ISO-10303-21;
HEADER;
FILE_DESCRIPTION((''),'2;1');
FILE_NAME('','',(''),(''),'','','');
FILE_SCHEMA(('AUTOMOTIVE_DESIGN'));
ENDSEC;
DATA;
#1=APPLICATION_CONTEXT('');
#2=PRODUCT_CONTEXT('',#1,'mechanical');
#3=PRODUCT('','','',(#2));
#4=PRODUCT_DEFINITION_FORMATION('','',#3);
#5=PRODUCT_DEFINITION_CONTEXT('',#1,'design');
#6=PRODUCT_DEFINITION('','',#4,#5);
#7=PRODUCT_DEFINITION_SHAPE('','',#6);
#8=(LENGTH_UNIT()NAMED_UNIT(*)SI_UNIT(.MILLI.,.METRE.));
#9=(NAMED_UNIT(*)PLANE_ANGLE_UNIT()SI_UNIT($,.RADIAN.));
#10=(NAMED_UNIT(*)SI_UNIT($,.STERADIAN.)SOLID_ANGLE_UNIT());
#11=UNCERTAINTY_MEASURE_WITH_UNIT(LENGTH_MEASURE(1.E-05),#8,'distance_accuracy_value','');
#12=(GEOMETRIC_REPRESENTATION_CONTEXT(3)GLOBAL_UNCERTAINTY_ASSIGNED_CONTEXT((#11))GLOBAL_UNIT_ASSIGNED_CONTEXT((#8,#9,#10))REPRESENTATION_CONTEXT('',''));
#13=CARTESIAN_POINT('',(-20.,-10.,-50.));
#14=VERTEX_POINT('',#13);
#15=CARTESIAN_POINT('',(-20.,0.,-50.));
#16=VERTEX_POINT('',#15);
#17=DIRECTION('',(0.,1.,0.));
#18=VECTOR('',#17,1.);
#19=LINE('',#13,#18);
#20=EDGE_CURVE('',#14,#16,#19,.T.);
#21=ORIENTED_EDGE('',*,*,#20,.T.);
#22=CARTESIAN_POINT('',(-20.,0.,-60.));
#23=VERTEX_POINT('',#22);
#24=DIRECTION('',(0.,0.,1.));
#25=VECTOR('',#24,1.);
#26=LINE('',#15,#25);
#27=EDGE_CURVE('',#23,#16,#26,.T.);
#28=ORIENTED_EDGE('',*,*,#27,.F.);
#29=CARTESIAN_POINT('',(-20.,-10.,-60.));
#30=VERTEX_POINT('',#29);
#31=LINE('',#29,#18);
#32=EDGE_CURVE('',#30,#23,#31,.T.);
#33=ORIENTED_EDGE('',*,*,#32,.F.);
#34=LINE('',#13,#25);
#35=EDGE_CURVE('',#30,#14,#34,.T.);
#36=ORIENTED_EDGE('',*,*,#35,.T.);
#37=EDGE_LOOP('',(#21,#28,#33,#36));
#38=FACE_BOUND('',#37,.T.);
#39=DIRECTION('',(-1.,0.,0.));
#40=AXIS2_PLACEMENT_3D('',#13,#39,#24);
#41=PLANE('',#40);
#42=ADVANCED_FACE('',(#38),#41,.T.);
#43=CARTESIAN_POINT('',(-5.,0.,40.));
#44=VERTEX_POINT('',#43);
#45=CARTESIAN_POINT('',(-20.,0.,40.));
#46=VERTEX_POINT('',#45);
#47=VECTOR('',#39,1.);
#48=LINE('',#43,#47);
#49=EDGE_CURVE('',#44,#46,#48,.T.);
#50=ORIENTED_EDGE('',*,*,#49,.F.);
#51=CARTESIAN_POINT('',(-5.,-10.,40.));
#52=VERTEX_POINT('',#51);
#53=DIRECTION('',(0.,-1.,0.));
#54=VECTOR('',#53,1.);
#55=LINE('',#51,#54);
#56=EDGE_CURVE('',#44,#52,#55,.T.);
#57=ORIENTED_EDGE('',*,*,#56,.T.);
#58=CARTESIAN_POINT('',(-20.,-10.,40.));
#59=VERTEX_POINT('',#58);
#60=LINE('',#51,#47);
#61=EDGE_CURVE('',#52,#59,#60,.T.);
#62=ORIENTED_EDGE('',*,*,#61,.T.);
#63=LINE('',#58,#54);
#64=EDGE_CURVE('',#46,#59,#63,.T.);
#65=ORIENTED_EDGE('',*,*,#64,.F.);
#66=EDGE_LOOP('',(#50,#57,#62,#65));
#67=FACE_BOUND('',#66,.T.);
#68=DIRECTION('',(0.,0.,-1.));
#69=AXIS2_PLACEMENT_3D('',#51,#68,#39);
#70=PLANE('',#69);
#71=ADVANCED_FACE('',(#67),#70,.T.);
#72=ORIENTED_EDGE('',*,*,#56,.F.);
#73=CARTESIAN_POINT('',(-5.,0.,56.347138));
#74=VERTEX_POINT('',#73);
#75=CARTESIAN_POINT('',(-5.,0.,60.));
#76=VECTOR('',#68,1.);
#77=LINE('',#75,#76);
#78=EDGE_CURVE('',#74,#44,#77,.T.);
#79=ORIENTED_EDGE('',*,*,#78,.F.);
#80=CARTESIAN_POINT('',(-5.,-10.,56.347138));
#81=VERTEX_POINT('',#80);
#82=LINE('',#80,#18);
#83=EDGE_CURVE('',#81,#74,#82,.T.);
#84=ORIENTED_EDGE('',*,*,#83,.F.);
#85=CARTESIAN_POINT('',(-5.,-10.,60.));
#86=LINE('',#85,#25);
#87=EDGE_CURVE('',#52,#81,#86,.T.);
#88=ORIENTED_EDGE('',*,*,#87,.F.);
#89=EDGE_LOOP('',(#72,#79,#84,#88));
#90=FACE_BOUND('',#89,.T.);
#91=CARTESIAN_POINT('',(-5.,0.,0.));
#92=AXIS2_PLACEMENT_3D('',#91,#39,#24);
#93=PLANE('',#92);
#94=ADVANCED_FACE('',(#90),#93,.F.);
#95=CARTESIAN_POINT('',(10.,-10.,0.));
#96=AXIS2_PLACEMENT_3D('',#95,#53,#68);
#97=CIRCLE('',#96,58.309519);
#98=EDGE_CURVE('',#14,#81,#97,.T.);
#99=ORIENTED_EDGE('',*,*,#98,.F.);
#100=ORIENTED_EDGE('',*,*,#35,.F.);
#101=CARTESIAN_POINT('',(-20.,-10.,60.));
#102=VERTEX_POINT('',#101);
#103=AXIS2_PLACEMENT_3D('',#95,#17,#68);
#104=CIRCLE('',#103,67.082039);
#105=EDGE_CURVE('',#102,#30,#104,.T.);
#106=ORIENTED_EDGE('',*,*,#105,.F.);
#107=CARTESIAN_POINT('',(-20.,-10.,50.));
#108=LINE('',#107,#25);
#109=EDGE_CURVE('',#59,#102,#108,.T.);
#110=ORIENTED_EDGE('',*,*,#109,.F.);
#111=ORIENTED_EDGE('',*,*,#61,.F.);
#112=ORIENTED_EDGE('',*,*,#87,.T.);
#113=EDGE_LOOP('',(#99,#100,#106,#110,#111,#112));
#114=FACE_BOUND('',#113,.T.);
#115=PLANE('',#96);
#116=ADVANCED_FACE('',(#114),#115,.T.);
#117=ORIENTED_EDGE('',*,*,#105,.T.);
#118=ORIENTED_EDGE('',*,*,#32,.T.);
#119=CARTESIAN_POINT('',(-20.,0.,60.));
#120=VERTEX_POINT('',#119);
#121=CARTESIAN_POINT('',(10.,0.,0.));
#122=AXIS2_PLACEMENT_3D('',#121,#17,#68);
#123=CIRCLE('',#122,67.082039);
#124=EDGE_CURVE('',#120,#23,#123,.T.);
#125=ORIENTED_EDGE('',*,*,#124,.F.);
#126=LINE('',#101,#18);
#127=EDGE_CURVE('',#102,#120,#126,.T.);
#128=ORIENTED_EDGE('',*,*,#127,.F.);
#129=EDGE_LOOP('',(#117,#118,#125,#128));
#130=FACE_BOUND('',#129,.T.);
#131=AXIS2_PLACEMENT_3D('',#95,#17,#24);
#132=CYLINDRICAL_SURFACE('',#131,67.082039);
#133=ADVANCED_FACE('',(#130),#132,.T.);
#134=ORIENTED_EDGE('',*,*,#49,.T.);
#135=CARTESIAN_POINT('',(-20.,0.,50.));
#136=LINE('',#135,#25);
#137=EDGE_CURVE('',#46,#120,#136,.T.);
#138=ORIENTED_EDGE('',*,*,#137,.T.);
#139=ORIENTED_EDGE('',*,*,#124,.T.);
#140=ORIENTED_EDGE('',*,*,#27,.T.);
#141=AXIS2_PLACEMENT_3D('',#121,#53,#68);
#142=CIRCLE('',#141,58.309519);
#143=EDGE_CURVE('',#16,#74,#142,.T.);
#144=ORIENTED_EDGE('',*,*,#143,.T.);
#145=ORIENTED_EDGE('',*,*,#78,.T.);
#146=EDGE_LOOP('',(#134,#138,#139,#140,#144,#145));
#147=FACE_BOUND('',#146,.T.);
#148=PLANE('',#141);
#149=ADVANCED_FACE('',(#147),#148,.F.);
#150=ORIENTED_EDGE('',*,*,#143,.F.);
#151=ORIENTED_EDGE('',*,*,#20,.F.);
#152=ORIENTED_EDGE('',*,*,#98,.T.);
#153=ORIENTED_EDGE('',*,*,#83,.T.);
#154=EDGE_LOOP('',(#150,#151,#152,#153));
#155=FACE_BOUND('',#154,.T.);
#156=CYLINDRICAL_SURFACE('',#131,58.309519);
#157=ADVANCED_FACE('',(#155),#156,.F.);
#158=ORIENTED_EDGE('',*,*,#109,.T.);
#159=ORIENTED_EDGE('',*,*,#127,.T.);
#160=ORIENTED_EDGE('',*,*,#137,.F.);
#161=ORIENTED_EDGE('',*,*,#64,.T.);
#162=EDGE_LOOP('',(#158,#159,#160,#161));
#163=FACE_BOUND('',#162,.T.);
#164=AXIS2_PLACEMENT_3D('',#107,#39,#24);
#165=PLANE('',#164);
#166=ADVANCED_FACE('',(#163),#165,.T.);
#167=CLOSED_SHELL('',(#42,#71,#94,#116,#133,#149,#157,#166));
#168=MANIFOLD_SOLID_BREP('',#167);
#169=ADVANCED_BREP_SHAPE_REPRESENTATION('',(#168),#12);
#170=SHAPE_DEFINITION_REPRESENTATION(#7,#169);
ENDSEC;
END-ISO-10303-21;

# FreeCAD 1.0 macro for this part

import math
import FreeCAD as App
import Part
import Sketcher
from FreeCAD import Vector

doc = App.newDocument("Part")
params = doc.addObject("Spreadsheet::Sheet", "Params")
for row, (alias, value) in enumerate([
    ("sketch1_height", "10 mm"),
    ("pad1_length", "10 mm"),
    ("sketch2_width", "10 mm"),
    ("sketch2_height", "20 mm"),
    ("pad2_length", "15 mm"),
], start=1):
    params.set(f"A{row}", alias)
    params.set(f"B{row}", "=" + value)
    params.setAlias(f"B{row}", alias)

body = doc.addObject("PartDesign::Body", "Body")

# Sketch on XZ plane
sketch1 = body.newObject("Sketcher::SketchObject", "Sketch")
sketch1.AttachmentSupport = (doc.getObject("XZ_Plane"), [""])
sketch1.MapMode = "FlatFace"
sketch1.addGeometry(Part.LineSegment(Vector(-20, -60, 0), Vector(-20, -50, 0)), False)
sketch1.addGeometry(Part.ArcOfCircle(Part.Circle(Vector(10, 0, 0), Vector(0, 0, 1), 58), math.radians(-121), math.radians(121)), False)
sketch1.addGeometry(Part.LineSegment(Vector(-20, 50, 0), Vector(-20, 60, 0)), False)
sketch1.addGeometry(Part.ArcOfCircle(Part.Circle(Vector(10, 0, 0), Vector(0, 0, 1), 67), math.radians(-117), math.radians(117)), False)
sketch1.addConstraint(Sketcher.Constraint("Coincident", 0, 2, 1, 1))
sketch1.addConstraint(Sketcher.Constraint("Coincident", 1, 2, 2, 1))
sketch1.addConstraint(Sketcher.Constraint("Coincident", 2, 2, 3, 2))
sketch1.addConstraint(Sketcher.Constraint("Coincident", 3, 1, 0, 1))
sketch1.addConstraint(Sketcher.Constraint("Vertical", 0))
sketch1.addConstraint(Sketcher.Constraint("Vertical", 2))
sketch1.addConstraint(Sketcher.Constraint("Coincident", 3, 3, 1, 3))
sketch1.addConstraint(Sketcher.Constraint("Symmetric", 0, 2, 1, 2, -1))
sketch1.addConstraint(Sketcher.Constraint("DistanceY", 0, 1, 0, 2, 10.0))
sketch1.addConstraint(Sketcher.Constraint("DistanceX", -1, 1, 1, 3, 10.0))
sketch1.addConstraint(Sketcher.Constraint("DistanceX", 0, 2, -1, 1, 20.0))
sketch1.addConstraint(Sketcher.Constraint("DistanceY", 0, 2, -1, 1, 50.0))
sketch1.setExpression("Constraints[8]", "Params.sketch1_height")
pad1 = body.newObject("PartDesign::Pad", "Pad")
pad1.Profile = sketch1
pad1.setExpression("Length", "Params.pad1_length")

# Sketch on YZ plane
sketch2 = body.newObject("Sketcher::SketchObject", "Sketch001")
sketch2.AttachmentSupport = (doc.getObject("YZ_Plane"), [""])
sketch2.MapMode = "FlatFace"
sketch2.AttachmentOffset = App.Placement(Vector(0, 0, -20), App.Rotation())
sketch2.addGeometry(Part.LineSegment(Vector(0, 40, 0), Vector(-10, 40, 0)), False)
sketch2.addGeometry(Part.LineSegment(Vector(-10, 40, 0), Vector(-10, 60, 0)), False)
sketch2.addGeometry(Part.LineSegment(Vector(-10, 60, 0), Vector(0, 60, 0)), False)
sketch2.addGeometry(Part.LineSegment(Vector(0, 60, 0), Vector(0, 40, 0)), False)
sketch2.addConstraint(Sketcher.Constraint("Coincident", 0, 2, 1, 1))
sketch2.addConstraint(Sketcher.Constraint("Coincident", 1, 2, 2, 1))
sketch2.addConstraint(Sketcher.Constraint("Coincident", 2, 2, 3, 1))
sketch2.addConstraint(Sketcher.Constraint("Coincident", 3, 2, 0, 1))
sketch2.addConstraint(Sketcher.Constraint("Horizontal", 0))
sketch2.addConstraint(Sketcher.Constraint("Vertical", 1))
sketch2.addConstraint(Sketcher.Constraint("Horizontal", 2))
sketch2.addConstraint(Sketcher.Constraint("Vertical", 3))
sketch2.addConstraint(Sketcher.Constraint("PointOnObject", 2, 2, -2))
sketch2.addConstraint(Sketcher.Constraint("DistanceX", 0, 2, 0, 1, 10.0))
sketch2.addConstraint(Sketcher.Constraint("DistanceY", 1, 1, 1, 2, 20.0))
sketch2.addConstraint(Sketcher.Constraint("DistanceY", -1, 1, 0, 2, 40.0))
sketch2.setExpression("Constraints[9]", "Params.sketch2_width")
sketch2.setExpression("Constraints[10]", "Params.sketch2_height")
pad2 = body.newObject("PartDesign::Pad", "Pad001")
pad2.Profile = sketch2
pad2.setExpression("Length", "Params.pad2_length")

doc.recompute()
